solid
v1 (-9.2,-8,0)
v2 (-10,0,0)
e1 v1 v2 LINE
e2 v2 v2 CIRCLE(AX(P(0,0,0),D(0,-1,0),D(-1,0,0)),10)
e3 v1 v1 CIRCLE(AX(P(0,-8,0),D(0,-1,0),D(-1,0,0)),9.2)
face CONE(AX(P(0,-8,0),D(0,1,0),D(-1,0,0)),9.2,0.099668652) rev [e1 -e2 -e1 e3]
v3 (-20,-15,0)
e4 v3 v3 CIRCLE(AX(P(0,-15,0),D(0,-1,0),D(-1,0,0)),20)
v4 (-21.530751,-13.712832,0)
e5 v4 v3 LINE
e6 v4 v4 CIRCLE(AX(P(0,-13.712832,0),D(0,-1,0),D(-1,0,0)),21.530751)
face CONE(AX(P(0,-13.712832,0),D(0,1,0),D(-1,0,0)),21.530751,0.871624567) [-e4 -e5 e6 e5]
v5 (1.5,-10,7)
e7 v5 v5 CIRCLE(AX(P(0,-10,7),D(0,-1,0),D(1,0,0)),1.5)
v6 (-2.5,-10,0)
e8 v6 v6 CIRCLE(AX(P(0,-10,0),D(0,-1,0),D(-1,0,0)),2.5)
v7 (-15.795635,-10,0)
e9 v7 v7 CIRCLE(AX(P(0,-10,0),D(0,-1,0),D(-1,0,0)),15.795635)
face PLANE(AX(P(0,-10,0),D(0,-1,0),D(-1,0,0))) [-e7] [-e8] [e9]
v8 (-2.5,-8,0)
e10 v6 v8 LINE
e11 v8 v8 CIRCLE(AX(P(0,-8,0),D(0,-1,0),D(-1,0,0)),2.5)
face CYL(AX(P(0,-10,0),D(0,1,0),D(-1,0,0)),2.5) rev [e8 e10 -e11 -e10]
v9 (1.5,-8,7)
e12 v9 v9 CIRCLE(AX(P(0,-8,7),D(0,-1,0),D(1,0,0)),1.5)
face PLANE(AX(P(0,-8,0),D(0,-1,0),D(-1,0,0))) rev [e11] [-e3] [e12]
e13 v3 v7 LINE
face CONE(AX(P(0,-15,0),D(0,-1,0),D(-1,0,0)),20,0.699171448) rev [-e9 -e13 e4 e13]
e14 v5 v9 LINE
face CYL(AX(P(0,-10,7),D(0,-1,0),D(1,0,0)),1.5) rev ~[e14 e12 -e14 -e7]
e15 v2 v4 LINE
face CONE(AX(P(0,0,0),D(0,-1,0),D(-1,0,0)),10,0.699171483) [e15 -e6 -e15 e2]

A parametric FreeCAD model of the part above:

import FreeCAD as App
import Part
import Sketcher

V = App.Vector
Q = App.Units.Quantity

doc = App.newDocument("Part")
body = doc.addObject("PartDesign::Body", "Body")

# Sketch on XY plane
sketch1 = body.newObject("Sketcher::SketchObject", "Sketch")
sketch1.AttachmentSupport = (doc.getObject("XY_Plane"), [""])
sketch1.MapMode = "FlatFace"
sketch1.addGeometry([
    Part.LineSegment(V(-9.2, -8, 0), V(-10, 0, 0)),  # 0
    Part.LineSegment(V(-10, 0, 0), V(-21.5, -13.7, 0)),  # 1
    Part.LineSegment(V(-21.5, -13.7, 0), V(-20, -15, 0)),  # 2
    Part.LineSegment(V(-20, -15, 0), V(-15.8, -10, 0)),  # 3
    Part.LineSegment(V(-15.8, -10, 0), V(-2.5, -10, 0)),  # 4
    Part.LineSegment(V(-2.5, -10, 0), V(-2.5, -8, 0)),  # 5
    Part.LineSegment(V(-2.5, -8, 0), V(-9.2, -8, 0)),  # 6
], False)
sketch1.addConstraint([
    Sketcher.Constraint("Coincident", 0, 2, 1, 1),
    Sketcher.Constraint("Coincident", 1, 2, 2, 1),
    Sketcher.Constraint("Coincident", 2, 2, 3, 1),
    Sketcher.Constraint("Coincident", 3, 2, 4, 1),
    Sketcher.Constraint("Coincident", 4, 2, 5, 1),
    Sketcher.Constraint("Coincident", 5, 2, 6, 1),
    Sketcher.Constraint("Coincident", 6, 2, 0, 1),
    Sketcher.Constraint("Horizontal", 4),
    Sketcher.Constraint("Vertical", 5),
    Sketcher.Constraint("Horizontal", 6),
    Sketcher.Constraint("PointOnObject", 0, 2, -1),
    Sketcher.Constraint("Perpendicular", 1, 2),
    Sketcher.Constraint("Perpendicular", 2, 3),
    Sketcher.Constraint("DistanceY", 5, 1, 5, 2, Q("2 mm")),
    Sketcher.Constraint("Distance", 2, Q("2 mm")),
    Sketcher.Constraint("DistanceX", 6, 2, 6, 1, Q("6.7 mm")),
    Sketcher.Constraint("DistanceX", 0, 2, -1, 1, Q("10 mm")),
    Sketcher.Constraint("DistanceX", 2, 2, -1, 1, Q("20 mm")),
    Sketcher.Constraint("DistanceY", 2, 2, -1, 1, Q("15 mm")),
    Sketcher.Constraint("DistanceY", 3, 2, -1, 1, Q("10 mm")),
    Sketcher.Constraint("DistanceX", 4, 2, -1, 1, Q("2.5 mm")),
])
revolution = body.newObject("PartDesign::Revolution", "Revolution")
revolution.Profile = sketch1
revolution.ReferenceAxis = (sketch1, ["V_Axis"])
revolution.Angle = 360

# Sketch on XZ plane
sketch2 = body.newObject("Sketcher::SketchObject", "Sketch001")
sketch2.AttachmentSupport = (doc.getObject("XZ_Plane"), [""])
sketch2.MapMode = "FlatFace"
sketch2.AttachmentOffset = App.Placement(V(0, 0, 10), App.Rotation())
sketch2.addGeometry(Part.Circle(V(0, 7, 0), V(0, 0, 1), 1.5), False)
sketch2.addConstraint([
    Sketcher.Constraint("PointOnObject", 0, 3, -2),
    Sketcher.Constraint("Diameter", 0, Q("3 mm")),
    Sketcher.Constraint("DistanceY", -1, 1, 0, 3, Q("7 mm")),
])
pocket1 = body.newObject("PartDesign::Pocket", "Pocket")
pocket1.Profile = sketch2
pocket1.Type = "ThroughAll"

doc.recompute()
